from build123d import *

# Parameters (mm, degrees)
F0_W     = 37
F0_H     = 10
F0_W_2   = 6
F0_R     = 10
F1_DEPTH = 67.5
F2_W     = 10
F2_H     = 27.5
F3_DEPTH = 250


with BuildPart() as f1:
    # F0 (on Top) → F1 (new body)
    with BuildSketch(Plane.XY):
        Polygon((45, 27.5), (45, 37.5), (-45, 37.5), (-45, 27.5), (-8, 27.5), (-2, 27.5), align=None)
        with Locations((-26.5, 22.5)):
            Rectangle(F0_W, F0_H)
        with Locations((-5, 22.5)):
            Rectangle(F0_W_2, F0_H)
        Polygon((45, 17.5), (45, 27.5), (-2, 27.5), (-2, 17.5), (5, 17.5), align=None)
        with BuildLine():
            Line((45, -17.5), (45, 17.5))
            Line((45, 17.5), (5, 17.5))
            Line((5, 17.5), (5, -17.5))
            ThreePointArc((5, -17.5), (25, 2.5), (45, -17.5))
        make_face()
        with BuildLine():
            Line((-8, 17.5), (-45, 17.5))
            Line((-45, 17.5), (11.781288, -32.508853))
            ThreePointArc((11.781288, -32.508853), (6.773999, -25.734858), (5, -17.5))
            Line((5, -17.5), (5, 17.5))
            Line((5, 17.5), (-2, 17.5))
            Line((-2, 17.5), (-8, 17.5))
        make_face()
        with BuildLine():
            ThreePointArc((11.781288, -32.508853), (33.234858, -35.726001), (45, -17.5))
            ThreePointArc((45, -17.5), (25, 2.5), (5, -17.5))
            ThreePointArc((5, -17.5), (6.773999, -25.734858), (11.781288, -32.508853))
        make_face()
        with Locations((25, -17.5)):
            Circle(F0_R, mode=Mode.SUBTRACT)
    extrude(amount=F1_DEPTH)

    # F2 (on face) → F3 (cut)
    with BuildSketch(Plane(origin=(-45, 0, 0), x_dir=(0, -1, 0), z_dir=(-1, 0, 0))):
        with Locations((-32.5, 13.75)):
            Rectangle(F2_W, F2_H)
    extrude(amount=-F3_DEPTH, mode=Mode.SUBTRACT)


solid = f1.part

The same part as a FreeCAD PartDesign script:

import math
import FreeCAD as App
import Part
import Sketcher

V = App.Vector


def add_polygon(sketch, points):
    """Adds a closed chain of lines whose ends are joined by coincident constraints."""
    first, n = sketch.GeometryCount, len(points)
    for a, b in zip(points, points[1:] + points[:1]):
        sketch.addGeometry(Part.LineSegment(App.Vector(*a, 0), App.Vector(*b, 0)), False)
    for i in range(n):
        sketch.addConstraint(Sketcher.Constraint("Coincident", first + i, 2, first + (i + 1) % n, 1))

doc = App.newDocument("Part")
body = doc.addObject("PartDesign::Body", "Body")

# Sketch on XY plane
sketch1 = body.newObject("Sketcher::SketchObject", "Sketch")
sketch1.AttachmentSupport = (doc.getObject("XY_Plane"), [""])
sketch1.MapMode = "FlatFace"
sketch1.addGeometry(Part.LineSegment(V(45, 37.5, 0), V(-45, 37.5, 0)), False)
sketch1.addGeometry(Part.LineSegment(V(-45, 37.5, 0), V(-45, 17.5, 0)), False)
sketch1.addGeometry(Part.LineSegment(V(-45, 17.5, 0), V(11.781288, -32.508853, 0)), False)
sketch1.addGeometry(Part.ArcOfCircle(Part.Circle(V(25, -17.5, 0), V(0, 0, 1), 20), math.radians(-131.371264), math.radians(-0.000001)), False)
sketch1.addGeometry(Part.LineSegment(V(45, -17.5, 0), V(45, 37.5, 0)), False)
sketch1.addGeometry(Part.Circle(V(25, -17.5, 0), V(0, 0, 1), 10), False)
sketch1.addConstraint(Sketcher.Constraint("Coincident", 0, 2, 1, 1))
sketch1.addConstraint(Sketcher.Constraint("Coincident", 1, 2, 2, 1))
sketch1.addConstraint(Sketcher.Constraint("Tangent", 2, 2, 3, 1))
sketch1.addConstraint(Sketcher.Constraint("Tangent", 3, 2, 4, 1))
sketch1.addConstraint(Sketcher.Constraint("Coincident", 4, 2, 0, 1))
sketch1.addConstraint(Sketcher.Constraint("Horizontal", 0))
sketch1.addConstraint(Sketcher.Constraint("Vertical", 1))
sketch1.addConstraint(Sketcher.Constraint("Vertical", 4))
sketch1.addConstraint(Sketcher.Constraint("Coincident", 5, 3, 3, 3))
sketch1.addConstraint(Sketcher.Constraint("Symmetric", 1, 2, 3, 2, -1, 1))
sketch1.addConstraint(Sketcher.Constraint("Diameter", 5, 20.0))
sketch1.addConstraint(Sketcher.Constraint("Radius", 3, 20.0))
sketch1.addConstraint(Sketcher.Constraint("DistanceX", 0, 2, 0, 1, 90.0))
sketch1.addConstraint(Sketcher.Constraint("DistanceY", 1, 2, 1, 1, 20.0))
sketch1.addConstraint(Sketcher.Constraint("DistanceY", 4, 1, 4, 2, 55.0))
pad1 = body.newObject("PartDesign::Pad", "Pad")
pad1.Profile = sketch1
pad1.Length = 67.5

# Sketch on YZ plane
sketch2 = body.newObject("Sketcher::SketchObject", "Sketch001")
sketch2.AttachmentSupport = (doc.getObject("YZ_Plane"), [""])
sketch2.MapMode = "FlatFace"
sketch2.AttachmentOffset = App.Placement(V(0, 0, -45), App.Rotation())
add_polygon(sketch2, [(37.5, 27.5), (37.5, 0), (27.5, 0), (27.5, 27.5)])  # lines 0-3
sketch2.addConstraint(Sketcher.Constraint("Vertical", 0))
sketch2.addConstraint(Sketcher.Constraint("Horizontal", 1))
sketch2.addConstraint(Sketcher.Constraint("Vertical", 2))
sketch2.addConstraint(Sketcher.Constraint("Horizontal", 3))
sketch2.addConstraint(Sketcher.Constraint("PointOnObject", 0, 2, -1))
sketch2.addConstraint(Sketcher.Constraint("DistanceX", 1, 2, 1, 1, 10.0))
sketch2.addConstraint(Sketcher.Constraint("DistanceY", 0, 2, 0, 1, 27.5))
sketch2.addConstraint(Sketcher.Constraint("DistanceX", -1, 1, 0, 2, 37.5))
pocket1 = body.newObject("PartDesign::Pocket", "Pocket")
pocket1.Profile = sketch2
pocket1.Length = 250
pocket1.Reversed = True

doc.recompute()
